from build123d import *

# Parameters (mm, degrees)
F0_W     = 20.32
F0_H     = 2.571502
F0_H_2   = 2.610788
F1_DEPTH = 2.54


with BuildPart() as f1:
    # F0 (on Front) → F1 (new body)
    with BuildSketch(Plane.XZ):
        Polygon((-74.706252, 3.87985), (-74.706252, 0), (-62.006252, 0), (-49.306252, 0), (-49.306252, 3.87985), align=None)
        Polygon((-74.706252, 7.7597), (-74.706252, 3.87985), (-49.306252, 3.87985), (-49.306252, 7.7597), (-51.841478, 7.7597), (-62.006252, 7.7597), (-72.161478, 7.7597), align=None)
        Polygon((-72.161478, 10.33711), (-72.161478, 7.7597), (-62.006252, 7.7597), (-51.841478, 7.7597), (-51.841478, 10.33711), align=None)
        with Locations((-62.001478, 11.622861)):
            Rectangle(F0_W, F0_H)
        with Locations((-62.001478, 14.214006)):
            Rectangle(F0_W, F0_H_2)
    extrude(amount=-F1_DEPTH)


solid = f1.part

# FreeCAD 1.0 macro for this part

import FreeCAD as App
import Part
import Sketcher
from FreeCAD import Vector
Q = App.Units.Quantity

doc = App.newDocument("Part")
body = doc.addObject("PartDesign::Body", "Body")

# Sketch on XZ plane
sketch1 = body.newObject("Sketcher::SketchObject", "Sketch")
sketch1.AttachmentSupport = (doc.getObject("XZ_Plane"), [""])
sketch1.MapMode = "FlatFace"
sketch1.addGeometry(Part.LineSegment(Vector(-74.7, 0, 0), Vector(-49.3, 0, 0)), False)
sketch1.addGeometry(Part.LineSegment(Vector(-49.3, 0, 0), Vector(-49.3, 7.8, 0)), False)
sketch1.addGeometry(Part.LineSegment(Vector(-49.3, 7.8, 0), Vector(-51.8, 7.8, 0)), False)
sketch1.addGeometry(Part.LineSegment(Vector(-51.8, 7.8, 0), Vector(-51.8, 15.5, 0)), False)
sketch1.addGeometry(Part.LineSegment(Vector(-51.8, 15.5, 0), Vector(-72.2, 15.5, 0)), False)
sketch1.addGeometry(Part.LineSegment(Vector(-72.2, 15.5, 0), Vector(-72.2, 7.8, 0)), False)
sketch1.addGeometry(Part.LineSegment(Vector(-72.2, 7.8, 0), Vector(-74.7, 7.8, 0)), False)
sketch1.addGeometry(Part.LineSegment(Vector(-74.7, 7.8, 0), Vector(-74.7, 0, 0)), False)
sketch1.addConstraint(Sketcher.Constraint("Coincident", 0, 2, 1, 1))
sketch1.addConstraint(Sketcher.Constraint("Coincident", 1, 2, 2, 1))
sketch1.addConstraint(Sketcher.Constraint("Coincident", 2, 2, 3, 1))
sketch1.addConstraint(Sketcher.Constraint("Coincident", 3, 2, 4, 1))
sketch1.addConstraint(Sketcher.Constraint("Coincident", 4, 2, 5, 1))
sketch1.addConstraint(Sketcher.Constraint("Coincident", 5, 2, 6, 1))
sketch1.addConstraint(Sketcher.Constraint("Coincident", 6, 2, 7, 1))
sketch1.addConstraint(Sketcher.Constraint("Coincident", 7, 2, 0, 1))
sketch1.addConstraint(Sketcher.Constraint("Horizontal", 0))
sketch1.addConstraint(Sketcher.Constraint("Vertical", 1))
sketch1.addConstraint(Sketcher.Constraint("Horizontal", 2))
sketch1.addConstraint(Sketcher.Constraint("Vertical", 3))
sketch1.addConstraint(Sketcher.Constraint("Horizontal", 4))
sketch1.addConstraint(Sketcher.Constraint("Vertical", 5))
sketch1.addConstraint(Sketcher.Constraint("Horizontal", 6))
sketch1.addConstraint(Sketcher.Constraint("Vertical", 7))
sketch1.addConstraint(Sketcher.Constraint("PointOnObject", 0, 2, -1))
sketch1.addConstraint(Sketcher.Constraint("Horizontal", 2, 2, 5, 2))
sketch1.addConstraint(Sketcher.Constraint("Equal", 1, 3))
sketch1.addConstraint(Sketcher.Constraint("DistanceX", 0, 1, 0, 2, Q("1 in")))
sketch1.addConstraint(Sketcher.Constraint("DistanceX", 4, 2, 4, 1, Q("0.8 in")))
sketch1.addConstraint(Sketcher.Constraint("DistanceY", 1, 1, 1, 2, Q("0.3055 in")))
sketch1.addConstraint(Sketcher.Constraint("DistanceX", 2, 2, 2, 1, Q("2.535226 mm")))
sketch1.addConstraint(Sketcher.Constraint("DistanceX", 2, 2, -1, 1, Q("51.841478 mm")))
pad1 = body.newObject("PartDesign::Pad", "Pad")
pad1.Profile = sketch1
pad1.Length = Q("0.1 in")
pad1.Reversed = True

doc.recompute()
